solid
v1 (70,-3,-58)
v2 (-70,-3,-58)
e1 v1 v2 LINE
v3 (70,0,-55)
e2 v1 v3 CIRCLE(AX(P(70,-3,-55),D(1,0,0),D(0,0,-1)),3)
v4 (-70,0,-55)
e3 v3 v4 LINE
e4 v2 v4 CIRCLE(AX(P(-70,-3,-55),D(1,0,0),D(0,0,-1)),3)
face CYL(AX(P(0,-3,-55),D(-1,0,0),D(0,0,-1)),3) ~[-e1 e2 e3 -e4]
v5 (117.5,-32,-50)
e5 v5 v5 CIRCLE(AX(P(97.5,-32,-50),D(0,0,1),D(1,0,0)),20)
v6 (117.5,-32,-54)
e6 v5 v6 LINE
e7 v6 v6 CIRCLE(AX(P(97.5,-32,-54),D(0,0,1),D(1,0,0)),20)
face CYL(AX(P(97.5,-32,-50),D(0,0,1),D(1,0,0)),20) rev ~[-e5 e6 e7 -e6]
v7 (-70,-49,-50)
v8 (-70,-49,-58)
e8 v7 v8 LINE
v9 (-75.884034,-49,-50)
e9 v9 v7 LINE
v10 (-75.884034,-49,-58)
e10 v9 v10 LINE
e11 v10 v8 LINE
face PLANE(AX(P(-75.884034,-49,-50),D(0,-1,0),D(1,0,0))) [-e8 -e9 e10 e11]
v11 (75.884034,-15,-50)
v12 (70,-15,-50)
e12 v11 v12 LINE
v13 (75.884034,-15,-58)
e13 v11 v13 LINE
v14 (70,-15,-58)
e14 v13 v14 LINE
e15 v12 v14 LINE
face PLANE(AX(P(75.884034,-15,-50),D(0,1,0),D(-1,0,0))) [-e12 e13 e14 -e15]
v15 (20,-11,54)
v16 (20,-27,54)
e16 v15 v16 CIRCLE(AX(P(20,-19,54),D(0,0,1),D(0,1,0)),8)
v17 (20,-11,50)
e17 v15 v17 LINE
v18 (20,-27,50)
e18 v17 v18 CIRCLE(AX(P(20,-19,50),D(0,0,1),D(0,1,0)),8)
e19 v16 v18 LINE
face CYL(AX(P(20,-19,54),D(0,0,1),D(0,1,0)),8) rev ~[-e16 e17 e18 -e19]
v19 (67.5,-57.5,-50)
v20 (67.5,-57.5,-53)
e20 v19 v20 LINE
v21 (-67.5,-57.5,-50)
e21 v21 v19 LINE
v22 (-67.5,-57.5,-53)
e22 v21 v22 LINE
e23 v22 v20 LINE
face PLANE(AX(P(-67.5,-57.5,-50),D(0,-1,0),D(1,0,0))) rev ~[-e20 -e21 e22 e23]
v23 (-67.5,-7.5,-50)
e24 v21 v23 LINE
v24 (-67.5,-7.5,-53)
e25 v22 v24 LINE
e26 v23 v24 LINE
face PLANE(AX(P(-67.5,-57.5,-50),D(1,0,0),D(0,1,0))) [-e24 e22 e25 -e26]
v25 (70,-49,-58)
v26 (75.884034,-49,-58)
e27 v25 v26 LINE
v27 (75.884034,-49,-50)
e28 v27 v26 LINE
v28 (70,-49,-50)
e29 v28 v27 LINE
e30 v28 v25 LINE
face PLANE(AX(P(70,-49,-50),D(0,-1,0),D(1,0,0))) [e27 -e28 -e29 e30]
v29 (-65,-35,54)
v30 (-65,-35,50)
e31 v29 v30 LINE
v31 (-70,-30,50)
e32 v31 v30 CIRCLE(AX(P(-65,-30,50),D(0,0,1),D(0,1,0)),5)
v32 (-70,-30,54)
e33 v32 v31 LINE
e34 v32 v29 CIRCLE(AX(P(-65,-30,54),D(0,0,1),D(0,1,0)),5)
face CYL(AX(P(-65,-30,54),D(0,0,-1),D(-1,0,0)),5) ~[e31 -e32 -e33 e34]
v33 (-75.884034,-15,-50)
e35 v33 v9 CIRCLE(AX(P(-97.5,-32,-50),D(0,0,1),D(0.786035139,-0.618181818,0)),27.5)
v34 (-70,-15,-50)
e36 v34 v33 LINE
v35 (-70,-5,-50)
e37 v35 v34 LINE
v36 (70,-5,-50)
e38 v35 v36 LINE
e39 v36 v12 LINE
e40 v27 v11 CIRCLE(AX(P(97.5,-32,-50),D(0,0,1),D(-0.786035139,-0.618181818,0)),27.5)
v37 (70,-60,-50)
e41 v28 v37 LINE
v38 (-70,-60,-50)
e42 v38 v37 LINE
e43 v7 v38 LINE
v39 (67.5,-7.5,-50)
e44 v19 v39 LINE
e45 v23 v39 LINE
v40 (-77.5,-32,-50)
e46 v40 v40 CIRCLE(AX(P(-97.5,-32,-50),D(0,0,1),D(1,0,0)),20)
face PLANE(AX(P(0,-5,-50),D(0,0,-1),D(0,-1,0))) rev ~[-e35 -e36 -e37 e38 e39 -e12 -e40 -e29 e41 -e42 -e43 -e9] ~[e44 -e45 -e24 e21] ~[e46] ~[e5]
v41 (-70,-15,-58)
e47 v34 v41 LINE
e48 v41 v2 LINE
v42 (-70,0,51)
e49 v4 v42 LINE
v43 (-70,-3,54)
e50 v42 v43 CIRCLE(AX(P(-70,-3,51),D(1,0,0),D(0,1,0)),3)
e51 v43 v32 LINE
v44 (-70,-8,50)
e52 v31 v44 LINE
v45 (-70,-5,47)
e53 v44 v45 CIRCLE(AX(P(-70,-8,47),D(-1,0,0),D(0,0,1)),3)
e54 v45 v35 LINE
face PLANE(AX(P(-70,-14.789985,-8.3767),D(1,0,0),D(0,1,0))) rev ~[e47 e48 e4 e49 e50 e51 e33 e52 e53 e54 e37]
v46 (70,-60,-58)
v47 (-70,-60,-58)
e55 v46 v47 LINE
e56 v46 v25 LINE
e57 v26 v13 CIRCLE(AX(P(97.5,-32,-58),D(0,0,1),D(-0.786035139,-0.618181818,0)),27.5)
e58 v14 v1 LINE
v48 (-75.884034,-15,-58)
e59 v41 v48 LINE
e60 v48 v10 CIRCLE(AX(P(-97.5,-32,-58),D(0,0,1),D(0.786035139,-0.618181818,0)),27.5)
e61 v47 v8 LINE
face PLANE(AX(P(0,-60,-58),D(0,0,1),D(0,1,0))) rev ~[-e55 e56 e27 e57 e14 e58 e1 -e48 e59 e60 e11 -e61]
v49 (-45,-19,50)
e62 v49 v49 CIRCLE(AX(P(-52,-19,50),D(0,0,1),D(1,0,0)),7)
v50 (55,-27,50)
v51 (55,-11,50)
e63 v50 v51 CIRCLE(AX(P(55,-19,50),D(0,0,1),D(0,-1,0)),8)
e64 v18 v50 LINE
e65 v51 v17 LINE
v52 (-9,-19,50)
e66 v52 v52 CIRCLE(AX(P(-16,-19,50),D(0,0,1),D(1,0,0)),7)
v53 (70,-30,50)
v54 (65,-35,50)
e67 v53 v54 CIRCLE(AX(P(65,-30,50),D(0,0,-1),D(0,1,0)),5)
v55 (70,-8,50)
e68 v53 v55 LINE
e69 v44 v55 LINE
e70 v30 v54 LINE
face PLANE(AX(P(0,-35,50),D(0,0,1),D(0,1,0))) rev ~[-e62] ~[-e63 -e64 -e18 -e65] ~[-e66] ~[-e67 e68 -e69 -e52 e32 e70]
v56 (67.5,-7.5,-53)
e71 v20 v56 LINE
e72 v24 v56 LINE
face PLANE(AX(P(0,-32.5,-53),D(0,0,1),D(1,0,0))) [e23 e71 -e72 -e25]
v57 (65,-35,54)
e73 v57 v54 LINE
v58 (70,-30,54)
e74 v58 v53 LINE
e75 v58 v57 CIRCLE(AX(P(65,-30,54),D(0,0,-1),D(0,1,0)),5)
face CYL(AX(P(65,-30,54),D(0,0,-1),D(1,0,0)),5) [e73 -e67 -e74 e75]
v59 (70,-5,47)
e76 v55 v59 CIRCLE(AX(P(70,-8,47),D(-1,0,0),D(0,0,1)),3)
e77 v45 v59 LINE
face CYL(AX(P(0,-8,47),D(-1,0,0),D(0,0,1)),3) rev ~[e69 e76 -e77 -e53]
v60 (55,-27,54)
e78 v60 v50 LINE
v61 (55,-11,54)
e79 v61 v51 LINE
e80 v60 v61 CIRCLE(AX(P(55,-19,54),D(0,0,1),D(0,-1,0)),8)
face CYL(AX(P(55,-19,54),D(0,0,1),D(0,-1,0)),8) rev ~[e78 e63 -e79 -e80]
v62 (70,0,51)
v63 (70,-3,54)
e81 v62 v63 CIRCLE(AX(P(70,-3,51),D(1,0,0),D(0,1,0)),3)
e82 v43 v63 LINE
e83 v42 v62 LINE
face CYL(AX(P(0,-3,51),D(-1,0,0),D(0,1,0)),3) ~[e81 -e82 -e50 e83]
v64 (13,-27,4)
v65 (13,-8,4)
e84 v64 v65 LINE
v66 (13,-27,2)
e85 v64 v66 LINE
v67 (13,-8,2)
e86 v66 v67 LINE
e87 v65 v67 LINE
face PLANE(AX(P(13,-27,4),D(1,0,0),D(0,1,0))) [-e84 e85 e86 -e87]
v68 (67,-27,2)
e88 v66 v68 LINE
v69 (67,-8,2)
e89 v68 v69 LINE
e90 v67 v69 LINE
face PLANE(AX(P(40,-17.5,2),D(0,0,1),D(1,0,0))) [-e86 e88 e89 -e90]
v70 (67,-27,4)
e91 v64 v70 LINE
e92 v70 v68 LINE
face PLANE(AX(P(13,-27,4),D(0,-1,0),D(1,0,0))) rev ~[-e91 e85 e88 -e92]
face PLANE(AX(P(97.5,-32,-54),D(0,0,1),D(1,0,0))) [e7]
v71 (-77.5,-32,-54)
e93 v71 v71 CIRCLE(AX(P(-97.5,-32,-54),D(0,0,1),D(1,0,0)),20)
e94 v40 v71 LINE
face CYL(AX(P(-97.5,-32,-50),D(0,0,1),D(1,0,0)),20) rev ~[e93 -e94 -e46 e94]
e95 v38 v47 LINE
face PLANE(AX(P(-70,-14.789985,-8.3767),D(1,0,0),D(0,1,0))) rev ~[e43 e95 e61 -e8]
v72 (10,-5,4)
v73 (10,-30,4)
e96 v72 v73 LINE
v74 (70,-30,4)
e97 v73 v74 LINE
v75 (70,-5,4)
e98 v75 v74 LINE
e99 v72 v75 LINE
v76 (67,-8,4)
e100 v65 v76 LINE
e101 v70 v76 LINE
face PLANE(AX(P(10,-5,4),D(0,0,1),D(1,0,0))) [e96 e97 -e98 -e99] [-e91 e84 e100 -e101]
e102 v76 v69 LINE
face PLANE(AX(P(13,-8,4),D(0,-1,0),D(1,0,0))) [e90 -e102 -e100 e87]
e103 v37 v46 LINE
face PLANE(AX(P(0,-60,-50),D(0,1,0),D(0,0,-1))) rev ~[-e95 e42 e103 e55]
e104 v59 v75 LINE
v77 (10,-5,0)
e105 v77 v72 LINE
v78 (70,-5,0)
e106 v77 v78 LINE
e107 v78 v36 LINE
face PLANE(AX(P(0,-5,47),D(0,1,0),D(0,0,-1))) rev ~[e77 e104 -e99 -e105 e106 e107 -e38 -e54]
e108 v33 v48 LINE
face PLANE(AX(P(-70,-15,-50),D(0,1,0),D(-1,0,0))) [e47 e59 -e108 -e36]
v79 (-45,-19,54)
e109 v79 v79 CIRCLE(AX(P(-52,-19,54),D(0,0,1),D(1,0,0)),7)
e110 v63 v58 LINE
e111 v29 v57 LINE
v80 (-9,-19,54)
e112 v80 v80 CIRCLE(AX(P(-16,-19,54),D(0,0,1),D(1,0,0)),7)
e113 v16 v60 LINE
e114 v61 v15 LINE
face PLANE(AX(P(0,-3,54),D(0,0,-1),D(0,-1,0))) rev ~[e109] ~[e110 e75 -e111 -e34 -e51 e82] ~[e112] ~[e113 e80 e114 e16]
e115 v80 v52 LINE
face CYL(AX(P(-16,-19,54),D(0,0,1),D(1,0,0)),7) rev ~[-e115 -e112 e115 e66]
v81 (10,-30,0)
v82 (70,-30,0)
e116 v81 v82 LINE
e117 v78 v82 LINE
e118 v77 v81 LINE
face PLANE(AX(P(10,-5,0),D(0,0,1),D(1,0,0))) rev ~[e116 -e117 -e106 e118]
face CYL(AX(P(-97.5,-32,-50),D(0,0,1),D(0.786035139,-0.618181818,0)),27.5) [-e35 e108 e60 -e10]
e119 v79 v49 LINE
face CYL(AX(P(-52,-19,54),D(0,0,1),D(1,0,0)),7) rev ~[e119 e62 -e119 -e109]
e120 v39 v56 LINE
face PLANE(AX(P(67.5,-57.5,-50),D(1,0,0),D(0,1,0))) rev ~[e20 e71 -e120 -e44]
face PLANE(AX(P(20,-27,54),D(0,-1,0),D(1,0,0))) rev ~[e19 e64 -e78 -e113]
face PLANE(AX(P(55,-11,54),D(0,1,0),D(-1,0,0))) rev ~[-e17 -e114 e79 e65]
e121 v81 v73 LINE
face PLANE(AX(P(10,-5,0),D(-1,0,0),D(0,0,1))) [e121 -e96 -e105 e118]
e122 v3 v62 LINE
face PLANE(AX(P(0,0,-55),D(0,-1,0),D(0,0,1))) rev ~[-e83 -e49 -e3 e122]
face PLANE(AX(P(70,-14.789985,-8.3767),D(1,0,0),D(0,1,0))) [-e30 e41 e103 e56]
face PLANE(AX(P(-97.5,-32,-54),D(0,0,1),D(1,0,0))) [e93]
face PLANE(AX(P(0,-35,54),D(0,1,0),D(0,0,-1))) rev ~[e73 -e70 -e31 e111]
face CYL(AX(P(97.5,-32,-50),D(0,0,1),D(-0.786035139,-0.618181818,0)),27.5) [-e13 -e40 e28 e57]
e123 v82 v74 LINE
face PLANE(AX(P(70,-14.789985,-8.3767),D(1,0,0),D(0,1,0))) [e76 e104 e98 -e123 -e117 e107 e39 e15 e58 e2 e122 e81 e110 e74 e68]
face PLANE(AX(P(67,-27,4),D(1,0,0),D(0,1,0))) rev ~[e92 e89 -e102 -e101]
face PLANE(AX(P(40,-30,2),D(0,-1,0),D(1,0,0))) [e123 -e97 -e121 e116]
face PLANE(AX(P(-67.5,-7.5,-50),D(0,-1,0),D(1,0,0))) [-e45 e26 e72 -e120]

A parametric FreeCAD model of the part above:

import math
import FreeCAD as App
import Part
import Sketcher
Q = App.Units.Quantity


def edges_at(feature, points):
    """Names of the edges that pass closest to the given points."""
    edges = feature.Shape.Edges
    near = lambda p: min(range(len(edges)), key=lambda i: edges[i].distToShape(Part.Vertex(*p))[0])
    return sorted({f"Edge{near(p) + 1}" for p in points})

doc = App.newDocument("Part")
body = doc.addObject("PartDesign::Body", "Body")

# Sketch on YZ plane
sketch1 = doc.addObject("Sketcher::SketchObject", "Sketch")
body.addObject(sketch1)
sketch1.AttachmentSupport = (doc.YZ_Plane, [""])
sketch1.MapMode = "FlatFace"
sketch1.addGeometry(Part.LineSegment(App.Vector(0, -55, 0), App.Vector(0, 51, 0)), False)
sketch1.addGeometry(Part.ArcOfCircle(Part.Circle(App.Vector(-3, 51, 0), App.Vector(0, 0, 1), 3), math.radians(0), math.radians(90)), False)
sketch1.addGeometry(Part.LineSegment(App.Vector(-3, 54, 0), App.Vector(-35, 54, 0)), False)
sketch1.addGeometry(Part.LineSegment(App.Vector(-35, 54, 0), App.Vector(-35, 50, 0)), False)
sketch1.addGeometry(Part.LineSegment(App.Vector(-35, 50, 0), App.Vector(-8, 50, 0)), False)
sketch1.addGeometry(Part.ArcOfCircle(Part.Circle(App.Vector(-8, 47, 0), App.Vector(0, 0, 1), 3), math.radians(0), math.radians(90)), False)
sketch1.addGeometry(Part.LineSegment(App.Vector(-5, 47, 0), App.Vector(-5, -50, 0)), False)
sketch1.addGeometry(Part.LineSegment(App.Vector(-5, -50, 0), App.Vector(-60, -50, 0)), False)
sketch1.addGeometry(Part.LineSegment(App.Vector(-60, -50, 0), App.Vector(-60, -58, 0)), False)
sketch1.addGeometry(Part.LineSegment(App.Vector(-60, -58, 0), App.Vector(-3, -58, 0)), False)
sketch1.addGeometry(Part.ArcOfCircle(Part.Circle(App.Vector(-3, -55, 0), App.Vector(0, 0, 1), 3), math.radians(-90), math.radians(0)), False)
sketch1.addConstraint(Sketcher.Constraint("Tangent", 0, 2, 1, 1))
sketch1.addConstraint(Sketcher.Constraint("Tangent", 1, 2, 2, 1))
sketch1.addConstraint(Sketcher.Constraint("Coincident", 2, 2, 3, 1))
sketch1.addConstraint(Sketcher.Constraint("Coincident", 3, 2, 4, 1))
sketch1.addConstraint(Sketcher.Constraint("Tangent", 4, 2, 5, 2))
sketch1.addConstraint(Sketcher.Constraint("Tangent", 5, 1, 6, 1))
sketch1.addConstraint(Sketcher.Constraint("Coincident", 6, 2, 7, 1))
sketch1.addConstraint(Sketcher.Constraint("Coincident", 7, 2, 8, 1))
sketch1.addConstraint(Sketcher.Constraint("Coincident", 8, 2, 9, 1))
sketch1.addConstraint(Sketcher.Constraint("Tangent", 9, 2, 10, 1))
sketch1.addConstraint(Sketcher.Constraint("Tangent", 10, 2, 0, 1))
sketch1.addConstraint(Sketcher.Constraint("Vertical", 0))
sketch1.addConstraint(Sketcher.Constraint("Horizontal", 2))
sketch1.addConstraint(Sketcher.Constraint("Vertical", 3))
sketch1.addConstraint(Sketcher.Constraint("Horizontal", 4))
sketch1.addConstraint(Sketcher.Constraint("Vertical", 6))
sketch1.addConstraint(Sketcher.Constraint("Horizontal", 7))
sketch1.addConstraint(Sketcher.Constraint("Vertical", 8))
sketch1.addConstraint(Sketcher.Constraint("Horizontal", 9))
sketch1.addConstraint(Sketcher.Constraint("Equal", 1, 5))
sketch1.addConstraint(Sketcher.Constraint("Equal", 5, 10))
sketch1.addConstraint(Sketcher.Constraint("PointOnObject", 0, 2, -2))
sketch1.addConstraint(Sketcher.Constraint("Radius", 1, Q("3 mm")))
sketch1.addConstraint(Sketcher.Constraint("DistanceX", 2, 2, 2, 1, Q("32 mm")))
sketch1.addConstraint(Sketcher.Constraint("DistanceX", 4, 1, 4, 2, Q("27 mm")))
sketch1.addConstraint(Sketcher.Constraint("DistanceX", 7, 2, 7, 1, Q("55 mm")))
sketch1.addConstraint(Sketcher.Constraint("DistanceY", 0, 1, 0, 2, Q("106 mm")))
sketch1.addConstraint(Sketcher.Constraint("DistanceY", 3, 2, 3, 1, Q("4 mm")))
sketch1.addConstraint(Sketcher.Constraint("DistanceY", 6, 2, 6, 1, Q("97 mm")))
sketch1.addConstraint(Sketcher.Constraint("DistanceY", -1, 1, 1, 3, Q("51 mm")))
pad1 = doc.addObject("PartDesign::Pad", "Pad")
body.addObject(pad1)
pad1.Profile = sketch1
pad1.Type = "TwoLengths"
pad1.Length = 70
pad1.Length2 = 70
pad1.Reversed = True

# Sketch on XY plane
sketch2 = doc.addObject("Sketcher::SketchObject", "Sketch001")
body.addObject(sketch2)
sketch2.AttachmentSupport = (doc.XY_Plane, [""])
sketch2.MapMode = "FlatFace"
sketch2.AttachmentOffset = App.Placement(App.Vector(0, 0, 54), App.Rotation())
sketch2.addGeometry(Part.LineSegment(App.Vector(55, -11, 0), App.Vector(20, -11, 0)), False)
sketch2.addGeometry(Part.ArcOfCircle(Part.Circle(App.Vector(20, -19, 0), App.Vector(0, 0, 1), 8), math.radians(90), math.radians(270)), False)
sketch2.addGeometry(Part.LineSegment(App.Vector(20, -27, 0), App.Vector(55, -27, 0)), False)
sketch2.addGeometry(Part.ArcOfCircle(Part.Circle(App.Vector(55, -19, 0), App.Vector(0, 0, 1), 8), math.radians(-90), math.radians(90)), False)
sketch2.addGeometry(Part.Circle(App.Vector(-16, -19, 0), App.Vector(0, 0, 1), 7), False)
sketch2.addGeometry(Part.Circle(App.Vector(-52, -19, 0), App.Vector(0, 0, 1), 7), False)
sketch2.addConstraint(Sketcher.Constraint("Tangent", 0, 2, 1, 1))
sketch2.addConstraint(Sketcher.Constraint("Tangent", 1, 2, 2, 1))
sketch2.addConstraint(Sketcher.Constraint("Tangent", 2, 2, 3, 1))
sketch2.addConstraint(Sketcher.Constraint("Tangent", 3, 2, 0, 1))
sketch2.addConstraint(Sketcher.Constraint("Horizontal", 0))
sketch2.addConstraint(Sketcher.Constraint("Horizontal", 2))
sketch2.addConstraint(Sketcher.Constraint("Equal", 4, 5))
sketch2.addConstraint(Sketcher.Constraint("Horizontal", 3, 3, 4, 3))
sketch2.addConstraint(Sketcher.Constraint("Horizontal", 4, 3, 5, 3))
sketch2.addConstraint(Sketcher.Constraint("Diameter", 4, Q("14 mm")))
sketch2.addConstraint(Sketcher.Constraint("Radius", 1, Q("8 mm")))
sketch2.addConstraint(Sketcher.Constraint("DistanceX", 0, 2, 0, 1, Q("35 mm")))
sketch2.addConstraint(Sketcher.Constraint("DistanceX", -1, 1, 1, 3, Q("20 mm")))
sketch2.addConstraint(Sketcher.Constraint("DistanceY", 1, 3, -1, 1, Q("19 mm")))
sketch2.addConstraint(Sketcher.Constraint("DistanceX", 4, 3, -1, 1, Q("16 mm")))
sketch2.addConstraint(Sketcher.Constraint("DistanceX", 5, 3, -1, 1, Q("52 mm")))
pocket1 = doc.addObject("PartDesign::Pocket", "Pocket")
body.addObject(pocket1)
pocket1.Profile = sketch2
pocket1.Length = 4

# Sketch on XY plane
sketch3 = doc.addObject("Sketcher::SketchObject", "Sketch002")
body.addObject(sketch3)
sketch3.AttachmentSupport = (doc.XY_Plane, [""])
sketch3.MapMode = "FlatFace"
sketch3.AttachmentOffset = App.Placement(App.Vector(0, 0, -50), App.Rotation())
sketch3.addGeometry(Part.LineSegment(App.Vector(-68, -8, 0), App.Vector(-68, -58, 0)), False)
sketch3.addGeometry(Part.LineSegment(App.Vector(-68, -58, 0), App.Vector(68, -58, 0)), False)
sketch3.addGeometry(Part.LineSegment(App.Vector(68, -58, 0), App.Vector(68, -8, 0)), False)
sketch3.addGeometry(Part.LineSegment(App.Vector(68, -8, 0), App.Vector(-68, -8, 0)), False)
sketch3.addConstraint(Sketcher.Constraint("Coincident", 0, 2, 1, 1))
sketch3.addConstraint(Sketcher.Constraint("Coincident", 1, 2, 2, 1))
sketch3.addConstraint(Sketcher.Constraint("Coincident", 2, 2, 3, 1))
sketch3.addConstraint(Sketcher.Constraint("Coincident", 3, 2, 0, 1))
sketch3.addConstraint(Sketcher.Constraint("Vertical", 0))
sketch3.addConstraint(Sketcher.Constraint("Horizontal", 1))
sketch3.addConstraint(Sketcher.Constraint("Vertical", 2))
sketch3.addConstraint(Sketcher.Constraint("Horizontal", 3))
sketch3.addConstraint(Sketcher.Constraint("DistanceX", 1, 1, 1, 2, Q("135 mm")))
sketch3.addConstraint(Sketcher.Constraint("DistanceY", 0, 2, 0, 1, Q("50 mm")))
sketch3.addConstraint(Sketcher.Constraint("DistanceX", 0, 2, -1, 1, Q("67.5 mm")))
sketch3.addConstraint(Sketcher.Constraint("DistanceY", 0, 2, -1, 1, Q("57.5 mm")))
pocket2 = doc.addObject("PartDesign::Pocket", "Pocket001")
body.addObject(pocket2)
pocket2.Profile = sketch3
pocket2.Length = 3

# Sketch on XY plane
sketch4 = doc.addObject("Sketcher::SketchObject", "Sketch003")
body.addObject(sketch4)
sketch4.AttachmentSupport = (doc.XY_Plane, [""])
sketch4.MapMode = "FlatFace"
sketch4.AttachmentOffset = App.Placement(App.Vector(0, 0, -50), App.Rotation())
sketch4.addGeometry(Part.LineSegment(App.Vector(70, -49, 0), App.Vector(76, -49, 0)), False)
sketch4.addGeometry(Part.ArcOfCircle(Part.Circle(App.Vector(98, -32, 0), App.Vector(0, 0, 1), 28), math.radians(-142), math.radians(142)), False)
sketch4.addGeometry(Part.LineSegment(App.Vector(76, -15, 0), App.Vector(70, -15, 0)), False)
sketch4.addGeometry(Part.LineSegment(App.Vector(70, -15, 0), App.Vector(70, -49, 0)), False)
sketch4.addGeometry(Part.ArcOfCircle(Part.Circle(App.Vector(-98, -32, 0), App.Vector(0, 0, 1), 28), math.radians(38), math.radians(322)), False)
sketch4.addGeometry(Part.LineSegment(App.Vector(-76, -49, 0), App.Vector(-70, -49, 0)), False)
sketch4.addGeometry(Part.LineSegment(App.Vector(-70, -49, 0), App.Vector(-70, -15, 0)), False)
sketch4.addGeometry(Part.LineSegment(App.Vector(-70, -15, 0), App.Vector(-76, -15, 0)), False)
sketch4.addConstraint(Sketcher.Constraint("Coincident", 0, 2, 1, 1))
sketch4.addConstraint(Sketcher.Constraint("Coincident", 1, 2, 2, 1))
sketch4.addConstraint(Sketcher.Constraint("Coincident", 2, 2, 3, 1))
sketch4.addConstraint(Sketcher.Constraint("Coincident", 3, 2, 0, 1))
sketch4.addConstraint(Sketcher.Constraint("Coincident", 4, 2, 5, 1))
sketch4.addConstraint(Sketcher.Constraint("Coincident", 5, 2, 6, 1))
sketch4.addConstraint(Sketcher.Constraint("Coincident", 6, 2, 7, 1))
sketch4.addConstraint(Sketcher.Constraint("Coincident", 7, 2, 4, 1))
sketch4.addConstraint(Sketcher.Constraint("Horizontal", 0))
sketch4.addConstraint(Sketcher.Constraint("Horizontal", 2))
sketch4.addConstraint(Sketcher.Constraint("Vertical", 3))
sketch4.addConstraint(Sketcher.Constraint("Horizontal", 5))
sketch4.addConstraint(Sketcher.Constraint("Vertical", 6))
sketch4.addConstraint(Sketcher.Constraint("Horizontal", 7))
sketch4.addConstraint(Sketcher.Constraint("Equal", 1, 4))
sketch4.addConstraint(Sketcher.Constraint("Symmetric", 1, 3, 4, 3, -2))
sketch4.addConstraint(Sketcher.Constraint("Symmetric", 3, 2, 5, 2, -2))
sketch4.addConstraint(Sketcher.Constraint("Horizontal", 2, 2, 6, 2))
sketch4.addConstraint(Sketcher.Constraint("Vertical", 0, 2, 1, 2))
sketch4.addConstraint(Sketcher.Constraint("Radius", 1, Q("27.5 mm")))
sketch4.addConstraint(Sketcher.Constraint("DistanceY", 3, 2, 3, 1, Q("34 mm")))
sketch4.addConstraint(Sketcher.Constraint("DistanceY", 1, 3, -1, 1, Q("32 mm")))
sketch4.addConstraint(Sketcher.Constraint("DistanceX", -1, 1, 2, 2, Q("70 mm")))
sketch4.addConstraint(Sketcher.Constraint("DistanceX", 4, 3, 1, 3, Q("195 mm")))
pad2 = doc.addObject("PartDesign::Pad", "Pad001")
body.addObject(pad2)
pad2.Profile = sketch4
pad2.Length = 8
pad2.Reversed = True

# Sketch on XY plane
sketch5 = doc.addObject("Sketcher::SketchObject", "Sketch004")
body.addObject(sketch5)
sketch5.AttachmentSupport = (doc.XY_Plane, [""])
sketch5.MapMode = "FlatFace"
sketch5.AttachmentOffset = App.Placement(App.Vector(0, 0, -50), App.Rotation())
sketch5.addGeometry(Part.Circle(App.Vector(-98, -32, 0), App.Vector(0, 0, 1), 20), False)
sketch5.addGeometry(Part.Circle(App.Vector(98, -32, 0), App.Vector(0, 0, 1), 20), False)
sketch5.addConstraint(Sketcher.Constraint("Equal", 0, 1))
sketch5.addConstraint(Sketcher.Constraint("Symmetric", 0, 3, 1, 3, -2))
sketch5.addConstraint(Sketcher.Constraint("Diameter", 0, Q("40 mm")))
sketch5.addConstraint(Sketcher.Constraint("DistanceY", 0, 3, -1, 1, Q("32 mm")))
sketch5.addConstraint(Sketcher.Constraint("DistanceX", 0, 3, 1, 3, Q("195 mm")))
pocket3 = doc.addObject("PartDesign::Pocket", "Pocket002")
body.addObject(pocket3)
pocket3.Profile = sketch5
pocket3.Length = 4

# Sketch on XZ plane
sketch6 = doc.addObject("Sketcher::SketchObject", "Sketch005")
body.addObject(sketch6)
sketch6.AttachmentSupport = (doc.XZ_Plane, [""])
sketch6.MapMode = "FlatFace"
sketch6.AttachmentOffset = App.Placement(App.Vector(0, 0, 5), App.Rotation())
sketch6.addGeometry(Part.LineSegment(App.Vector(10, 4, 0), App.Vector(10, 0, 0)), False)
sketch6.addGeometry(Part.LineSegment(App.Vector(10, 0, 0), App.Vector(70, 0, 0)), False)
sketch6.addGeometry(Part.LineSegment(App.Vector(70, 0, 0), App.Vector(70, 4, 0)), False)
sketch6.addGeometry(Part.LineSegment(App.Vector(70, 4, 0), App.Vector(10, 4, 0)), False)
sketch6.addConstraint(Sketcher.Constraint("Coincident", 0, 2, 1, 1))
sketch6.addConstraint(Sketcher.Constraint("Coincident", 1, 2, 2, 1))
sketch6.addConstraint(Sketcher.Constraint("Coincident", 2, 2, 3, 1))
sketch6.addConstraint(Sketcher.Constraint("Coincident", 3, 2, 0, 1))
sketch6.addConstraint(Sketcher.Constraint("Vertical", 0))
sketch6.addConstraint(Sketcher.Constraint("Horizontal", 1))
sketch6.addConstraint(Sketcher.Constraint("Vertical", 2))
sketch6.addConstraint(Sketcher.Constraint("Horizontal", 3))
sketch6.addConstraint(Sketcher.Constraint("PointOnObject", 0, 2, -1))
sketch6.addConstraint(Sketcher.Constraint("DistanceX", 1, 1, 1, 2, Q("60 mm")))
sketch6.addConstraint(Sketcher.Constraint("DistanceY", 0, 2, 0, 1, Q("4 mm")))
sketch6.addConstraint(Sketcher.Constraint("DistanceX", -1, 1, 0, 2, Q("10 mm")))
pad3 = doc.addObject("PartDesign::Pad", "Pad002")
body.addObject(pad3)
pad3.Profile = sketch6
pad3.Length = 25

# Sketch on XY plane
sketch7 = doc.addObject("Sketcher::SketchObject", "Sketch006")
body.addObject(sketch7)
sketch7.AttachmentSupport = (doc.XY_Plane, [""])
sketch7.MapMode = "FlatFace"
sketch7.AttachmentOffset = App.Placement(App.Vector(0, 0, 4), App.Rotation())
sketch7.addGeometry(Part.LineSegment(App.Vector(13, -8, 0), App.Vector(13, -27, 0)), False)
sketch7.addGeometry(Part.LineSegment(App.Vector(13, -27, 0), App.Vector(67, -27, 0)), False)
sketch7.addGeometry(Part.LineSegment(App.Vector(67, -27, 0), App.Vector(67, -8, 0)), False)
sketch7.addGeometry(Part.LineSegment(App.Vector(67, -8, 0), App.Vector(13, -8, 0)), False)
sketch7.addConstraint(Sketcher.Constraint("Coincident", 0, 2, 1, 1))
sketch7.addConstraint(Sketcher.Constraint("Coincident", 1, 2, 2, 1))
sketch7.addConstraint(Sketcher.Constraint("Coincident", 2, 2, 3, 1))
sketch7.addConstraint(Sketcher.Constraint("Coincident", 3, 2, 0, 1))
sketch7.addConstraint(Sketcher.Constraint("Vertical", 0))
sketch7.addConstraint(Sketcher.Constraint("Horizontal", 1))
sketch7.addConstraint(Sketcher.Constraint("Vertical", 2))
sketch7.addConstraint(Sketcher.Constraint("Horizontal", 3))
sketch7.addConstraint(Sketcher.Constraint("DistanceX", 1, 1, 1, 2, Q("54 mm")))
sketch7.addConstraint(Sketcher.Constraint("DistanceY", 0, 2, 0, 1, Q("19 mm")))
sketch7.addConstraint(Sketcher.Constraint("DistanceX", -1, 1, 0, 2, Q("13 mm")))
sketch7.addConstraint(Sketcher.Constraint("DistanceY", 0, 2, -1, 1, Q("27 mm")))
pocket4 = doc.addObject("PartDesign::Pocket", "Pocket003")
body.addObject(pocket4)
pocket4.Profile = sketch7
pocket4.Length = 2
doc.recompute()

fillet = doc.addObject("PartDesign::Fillet", "Fillet")
body.addObject(fillet)
fillet.Base = (pocket4, edges_at(pocket4, [(-70, -35, 52), (70, -35, 52)]))
fillet.Radius = 5

doc.recompute()
